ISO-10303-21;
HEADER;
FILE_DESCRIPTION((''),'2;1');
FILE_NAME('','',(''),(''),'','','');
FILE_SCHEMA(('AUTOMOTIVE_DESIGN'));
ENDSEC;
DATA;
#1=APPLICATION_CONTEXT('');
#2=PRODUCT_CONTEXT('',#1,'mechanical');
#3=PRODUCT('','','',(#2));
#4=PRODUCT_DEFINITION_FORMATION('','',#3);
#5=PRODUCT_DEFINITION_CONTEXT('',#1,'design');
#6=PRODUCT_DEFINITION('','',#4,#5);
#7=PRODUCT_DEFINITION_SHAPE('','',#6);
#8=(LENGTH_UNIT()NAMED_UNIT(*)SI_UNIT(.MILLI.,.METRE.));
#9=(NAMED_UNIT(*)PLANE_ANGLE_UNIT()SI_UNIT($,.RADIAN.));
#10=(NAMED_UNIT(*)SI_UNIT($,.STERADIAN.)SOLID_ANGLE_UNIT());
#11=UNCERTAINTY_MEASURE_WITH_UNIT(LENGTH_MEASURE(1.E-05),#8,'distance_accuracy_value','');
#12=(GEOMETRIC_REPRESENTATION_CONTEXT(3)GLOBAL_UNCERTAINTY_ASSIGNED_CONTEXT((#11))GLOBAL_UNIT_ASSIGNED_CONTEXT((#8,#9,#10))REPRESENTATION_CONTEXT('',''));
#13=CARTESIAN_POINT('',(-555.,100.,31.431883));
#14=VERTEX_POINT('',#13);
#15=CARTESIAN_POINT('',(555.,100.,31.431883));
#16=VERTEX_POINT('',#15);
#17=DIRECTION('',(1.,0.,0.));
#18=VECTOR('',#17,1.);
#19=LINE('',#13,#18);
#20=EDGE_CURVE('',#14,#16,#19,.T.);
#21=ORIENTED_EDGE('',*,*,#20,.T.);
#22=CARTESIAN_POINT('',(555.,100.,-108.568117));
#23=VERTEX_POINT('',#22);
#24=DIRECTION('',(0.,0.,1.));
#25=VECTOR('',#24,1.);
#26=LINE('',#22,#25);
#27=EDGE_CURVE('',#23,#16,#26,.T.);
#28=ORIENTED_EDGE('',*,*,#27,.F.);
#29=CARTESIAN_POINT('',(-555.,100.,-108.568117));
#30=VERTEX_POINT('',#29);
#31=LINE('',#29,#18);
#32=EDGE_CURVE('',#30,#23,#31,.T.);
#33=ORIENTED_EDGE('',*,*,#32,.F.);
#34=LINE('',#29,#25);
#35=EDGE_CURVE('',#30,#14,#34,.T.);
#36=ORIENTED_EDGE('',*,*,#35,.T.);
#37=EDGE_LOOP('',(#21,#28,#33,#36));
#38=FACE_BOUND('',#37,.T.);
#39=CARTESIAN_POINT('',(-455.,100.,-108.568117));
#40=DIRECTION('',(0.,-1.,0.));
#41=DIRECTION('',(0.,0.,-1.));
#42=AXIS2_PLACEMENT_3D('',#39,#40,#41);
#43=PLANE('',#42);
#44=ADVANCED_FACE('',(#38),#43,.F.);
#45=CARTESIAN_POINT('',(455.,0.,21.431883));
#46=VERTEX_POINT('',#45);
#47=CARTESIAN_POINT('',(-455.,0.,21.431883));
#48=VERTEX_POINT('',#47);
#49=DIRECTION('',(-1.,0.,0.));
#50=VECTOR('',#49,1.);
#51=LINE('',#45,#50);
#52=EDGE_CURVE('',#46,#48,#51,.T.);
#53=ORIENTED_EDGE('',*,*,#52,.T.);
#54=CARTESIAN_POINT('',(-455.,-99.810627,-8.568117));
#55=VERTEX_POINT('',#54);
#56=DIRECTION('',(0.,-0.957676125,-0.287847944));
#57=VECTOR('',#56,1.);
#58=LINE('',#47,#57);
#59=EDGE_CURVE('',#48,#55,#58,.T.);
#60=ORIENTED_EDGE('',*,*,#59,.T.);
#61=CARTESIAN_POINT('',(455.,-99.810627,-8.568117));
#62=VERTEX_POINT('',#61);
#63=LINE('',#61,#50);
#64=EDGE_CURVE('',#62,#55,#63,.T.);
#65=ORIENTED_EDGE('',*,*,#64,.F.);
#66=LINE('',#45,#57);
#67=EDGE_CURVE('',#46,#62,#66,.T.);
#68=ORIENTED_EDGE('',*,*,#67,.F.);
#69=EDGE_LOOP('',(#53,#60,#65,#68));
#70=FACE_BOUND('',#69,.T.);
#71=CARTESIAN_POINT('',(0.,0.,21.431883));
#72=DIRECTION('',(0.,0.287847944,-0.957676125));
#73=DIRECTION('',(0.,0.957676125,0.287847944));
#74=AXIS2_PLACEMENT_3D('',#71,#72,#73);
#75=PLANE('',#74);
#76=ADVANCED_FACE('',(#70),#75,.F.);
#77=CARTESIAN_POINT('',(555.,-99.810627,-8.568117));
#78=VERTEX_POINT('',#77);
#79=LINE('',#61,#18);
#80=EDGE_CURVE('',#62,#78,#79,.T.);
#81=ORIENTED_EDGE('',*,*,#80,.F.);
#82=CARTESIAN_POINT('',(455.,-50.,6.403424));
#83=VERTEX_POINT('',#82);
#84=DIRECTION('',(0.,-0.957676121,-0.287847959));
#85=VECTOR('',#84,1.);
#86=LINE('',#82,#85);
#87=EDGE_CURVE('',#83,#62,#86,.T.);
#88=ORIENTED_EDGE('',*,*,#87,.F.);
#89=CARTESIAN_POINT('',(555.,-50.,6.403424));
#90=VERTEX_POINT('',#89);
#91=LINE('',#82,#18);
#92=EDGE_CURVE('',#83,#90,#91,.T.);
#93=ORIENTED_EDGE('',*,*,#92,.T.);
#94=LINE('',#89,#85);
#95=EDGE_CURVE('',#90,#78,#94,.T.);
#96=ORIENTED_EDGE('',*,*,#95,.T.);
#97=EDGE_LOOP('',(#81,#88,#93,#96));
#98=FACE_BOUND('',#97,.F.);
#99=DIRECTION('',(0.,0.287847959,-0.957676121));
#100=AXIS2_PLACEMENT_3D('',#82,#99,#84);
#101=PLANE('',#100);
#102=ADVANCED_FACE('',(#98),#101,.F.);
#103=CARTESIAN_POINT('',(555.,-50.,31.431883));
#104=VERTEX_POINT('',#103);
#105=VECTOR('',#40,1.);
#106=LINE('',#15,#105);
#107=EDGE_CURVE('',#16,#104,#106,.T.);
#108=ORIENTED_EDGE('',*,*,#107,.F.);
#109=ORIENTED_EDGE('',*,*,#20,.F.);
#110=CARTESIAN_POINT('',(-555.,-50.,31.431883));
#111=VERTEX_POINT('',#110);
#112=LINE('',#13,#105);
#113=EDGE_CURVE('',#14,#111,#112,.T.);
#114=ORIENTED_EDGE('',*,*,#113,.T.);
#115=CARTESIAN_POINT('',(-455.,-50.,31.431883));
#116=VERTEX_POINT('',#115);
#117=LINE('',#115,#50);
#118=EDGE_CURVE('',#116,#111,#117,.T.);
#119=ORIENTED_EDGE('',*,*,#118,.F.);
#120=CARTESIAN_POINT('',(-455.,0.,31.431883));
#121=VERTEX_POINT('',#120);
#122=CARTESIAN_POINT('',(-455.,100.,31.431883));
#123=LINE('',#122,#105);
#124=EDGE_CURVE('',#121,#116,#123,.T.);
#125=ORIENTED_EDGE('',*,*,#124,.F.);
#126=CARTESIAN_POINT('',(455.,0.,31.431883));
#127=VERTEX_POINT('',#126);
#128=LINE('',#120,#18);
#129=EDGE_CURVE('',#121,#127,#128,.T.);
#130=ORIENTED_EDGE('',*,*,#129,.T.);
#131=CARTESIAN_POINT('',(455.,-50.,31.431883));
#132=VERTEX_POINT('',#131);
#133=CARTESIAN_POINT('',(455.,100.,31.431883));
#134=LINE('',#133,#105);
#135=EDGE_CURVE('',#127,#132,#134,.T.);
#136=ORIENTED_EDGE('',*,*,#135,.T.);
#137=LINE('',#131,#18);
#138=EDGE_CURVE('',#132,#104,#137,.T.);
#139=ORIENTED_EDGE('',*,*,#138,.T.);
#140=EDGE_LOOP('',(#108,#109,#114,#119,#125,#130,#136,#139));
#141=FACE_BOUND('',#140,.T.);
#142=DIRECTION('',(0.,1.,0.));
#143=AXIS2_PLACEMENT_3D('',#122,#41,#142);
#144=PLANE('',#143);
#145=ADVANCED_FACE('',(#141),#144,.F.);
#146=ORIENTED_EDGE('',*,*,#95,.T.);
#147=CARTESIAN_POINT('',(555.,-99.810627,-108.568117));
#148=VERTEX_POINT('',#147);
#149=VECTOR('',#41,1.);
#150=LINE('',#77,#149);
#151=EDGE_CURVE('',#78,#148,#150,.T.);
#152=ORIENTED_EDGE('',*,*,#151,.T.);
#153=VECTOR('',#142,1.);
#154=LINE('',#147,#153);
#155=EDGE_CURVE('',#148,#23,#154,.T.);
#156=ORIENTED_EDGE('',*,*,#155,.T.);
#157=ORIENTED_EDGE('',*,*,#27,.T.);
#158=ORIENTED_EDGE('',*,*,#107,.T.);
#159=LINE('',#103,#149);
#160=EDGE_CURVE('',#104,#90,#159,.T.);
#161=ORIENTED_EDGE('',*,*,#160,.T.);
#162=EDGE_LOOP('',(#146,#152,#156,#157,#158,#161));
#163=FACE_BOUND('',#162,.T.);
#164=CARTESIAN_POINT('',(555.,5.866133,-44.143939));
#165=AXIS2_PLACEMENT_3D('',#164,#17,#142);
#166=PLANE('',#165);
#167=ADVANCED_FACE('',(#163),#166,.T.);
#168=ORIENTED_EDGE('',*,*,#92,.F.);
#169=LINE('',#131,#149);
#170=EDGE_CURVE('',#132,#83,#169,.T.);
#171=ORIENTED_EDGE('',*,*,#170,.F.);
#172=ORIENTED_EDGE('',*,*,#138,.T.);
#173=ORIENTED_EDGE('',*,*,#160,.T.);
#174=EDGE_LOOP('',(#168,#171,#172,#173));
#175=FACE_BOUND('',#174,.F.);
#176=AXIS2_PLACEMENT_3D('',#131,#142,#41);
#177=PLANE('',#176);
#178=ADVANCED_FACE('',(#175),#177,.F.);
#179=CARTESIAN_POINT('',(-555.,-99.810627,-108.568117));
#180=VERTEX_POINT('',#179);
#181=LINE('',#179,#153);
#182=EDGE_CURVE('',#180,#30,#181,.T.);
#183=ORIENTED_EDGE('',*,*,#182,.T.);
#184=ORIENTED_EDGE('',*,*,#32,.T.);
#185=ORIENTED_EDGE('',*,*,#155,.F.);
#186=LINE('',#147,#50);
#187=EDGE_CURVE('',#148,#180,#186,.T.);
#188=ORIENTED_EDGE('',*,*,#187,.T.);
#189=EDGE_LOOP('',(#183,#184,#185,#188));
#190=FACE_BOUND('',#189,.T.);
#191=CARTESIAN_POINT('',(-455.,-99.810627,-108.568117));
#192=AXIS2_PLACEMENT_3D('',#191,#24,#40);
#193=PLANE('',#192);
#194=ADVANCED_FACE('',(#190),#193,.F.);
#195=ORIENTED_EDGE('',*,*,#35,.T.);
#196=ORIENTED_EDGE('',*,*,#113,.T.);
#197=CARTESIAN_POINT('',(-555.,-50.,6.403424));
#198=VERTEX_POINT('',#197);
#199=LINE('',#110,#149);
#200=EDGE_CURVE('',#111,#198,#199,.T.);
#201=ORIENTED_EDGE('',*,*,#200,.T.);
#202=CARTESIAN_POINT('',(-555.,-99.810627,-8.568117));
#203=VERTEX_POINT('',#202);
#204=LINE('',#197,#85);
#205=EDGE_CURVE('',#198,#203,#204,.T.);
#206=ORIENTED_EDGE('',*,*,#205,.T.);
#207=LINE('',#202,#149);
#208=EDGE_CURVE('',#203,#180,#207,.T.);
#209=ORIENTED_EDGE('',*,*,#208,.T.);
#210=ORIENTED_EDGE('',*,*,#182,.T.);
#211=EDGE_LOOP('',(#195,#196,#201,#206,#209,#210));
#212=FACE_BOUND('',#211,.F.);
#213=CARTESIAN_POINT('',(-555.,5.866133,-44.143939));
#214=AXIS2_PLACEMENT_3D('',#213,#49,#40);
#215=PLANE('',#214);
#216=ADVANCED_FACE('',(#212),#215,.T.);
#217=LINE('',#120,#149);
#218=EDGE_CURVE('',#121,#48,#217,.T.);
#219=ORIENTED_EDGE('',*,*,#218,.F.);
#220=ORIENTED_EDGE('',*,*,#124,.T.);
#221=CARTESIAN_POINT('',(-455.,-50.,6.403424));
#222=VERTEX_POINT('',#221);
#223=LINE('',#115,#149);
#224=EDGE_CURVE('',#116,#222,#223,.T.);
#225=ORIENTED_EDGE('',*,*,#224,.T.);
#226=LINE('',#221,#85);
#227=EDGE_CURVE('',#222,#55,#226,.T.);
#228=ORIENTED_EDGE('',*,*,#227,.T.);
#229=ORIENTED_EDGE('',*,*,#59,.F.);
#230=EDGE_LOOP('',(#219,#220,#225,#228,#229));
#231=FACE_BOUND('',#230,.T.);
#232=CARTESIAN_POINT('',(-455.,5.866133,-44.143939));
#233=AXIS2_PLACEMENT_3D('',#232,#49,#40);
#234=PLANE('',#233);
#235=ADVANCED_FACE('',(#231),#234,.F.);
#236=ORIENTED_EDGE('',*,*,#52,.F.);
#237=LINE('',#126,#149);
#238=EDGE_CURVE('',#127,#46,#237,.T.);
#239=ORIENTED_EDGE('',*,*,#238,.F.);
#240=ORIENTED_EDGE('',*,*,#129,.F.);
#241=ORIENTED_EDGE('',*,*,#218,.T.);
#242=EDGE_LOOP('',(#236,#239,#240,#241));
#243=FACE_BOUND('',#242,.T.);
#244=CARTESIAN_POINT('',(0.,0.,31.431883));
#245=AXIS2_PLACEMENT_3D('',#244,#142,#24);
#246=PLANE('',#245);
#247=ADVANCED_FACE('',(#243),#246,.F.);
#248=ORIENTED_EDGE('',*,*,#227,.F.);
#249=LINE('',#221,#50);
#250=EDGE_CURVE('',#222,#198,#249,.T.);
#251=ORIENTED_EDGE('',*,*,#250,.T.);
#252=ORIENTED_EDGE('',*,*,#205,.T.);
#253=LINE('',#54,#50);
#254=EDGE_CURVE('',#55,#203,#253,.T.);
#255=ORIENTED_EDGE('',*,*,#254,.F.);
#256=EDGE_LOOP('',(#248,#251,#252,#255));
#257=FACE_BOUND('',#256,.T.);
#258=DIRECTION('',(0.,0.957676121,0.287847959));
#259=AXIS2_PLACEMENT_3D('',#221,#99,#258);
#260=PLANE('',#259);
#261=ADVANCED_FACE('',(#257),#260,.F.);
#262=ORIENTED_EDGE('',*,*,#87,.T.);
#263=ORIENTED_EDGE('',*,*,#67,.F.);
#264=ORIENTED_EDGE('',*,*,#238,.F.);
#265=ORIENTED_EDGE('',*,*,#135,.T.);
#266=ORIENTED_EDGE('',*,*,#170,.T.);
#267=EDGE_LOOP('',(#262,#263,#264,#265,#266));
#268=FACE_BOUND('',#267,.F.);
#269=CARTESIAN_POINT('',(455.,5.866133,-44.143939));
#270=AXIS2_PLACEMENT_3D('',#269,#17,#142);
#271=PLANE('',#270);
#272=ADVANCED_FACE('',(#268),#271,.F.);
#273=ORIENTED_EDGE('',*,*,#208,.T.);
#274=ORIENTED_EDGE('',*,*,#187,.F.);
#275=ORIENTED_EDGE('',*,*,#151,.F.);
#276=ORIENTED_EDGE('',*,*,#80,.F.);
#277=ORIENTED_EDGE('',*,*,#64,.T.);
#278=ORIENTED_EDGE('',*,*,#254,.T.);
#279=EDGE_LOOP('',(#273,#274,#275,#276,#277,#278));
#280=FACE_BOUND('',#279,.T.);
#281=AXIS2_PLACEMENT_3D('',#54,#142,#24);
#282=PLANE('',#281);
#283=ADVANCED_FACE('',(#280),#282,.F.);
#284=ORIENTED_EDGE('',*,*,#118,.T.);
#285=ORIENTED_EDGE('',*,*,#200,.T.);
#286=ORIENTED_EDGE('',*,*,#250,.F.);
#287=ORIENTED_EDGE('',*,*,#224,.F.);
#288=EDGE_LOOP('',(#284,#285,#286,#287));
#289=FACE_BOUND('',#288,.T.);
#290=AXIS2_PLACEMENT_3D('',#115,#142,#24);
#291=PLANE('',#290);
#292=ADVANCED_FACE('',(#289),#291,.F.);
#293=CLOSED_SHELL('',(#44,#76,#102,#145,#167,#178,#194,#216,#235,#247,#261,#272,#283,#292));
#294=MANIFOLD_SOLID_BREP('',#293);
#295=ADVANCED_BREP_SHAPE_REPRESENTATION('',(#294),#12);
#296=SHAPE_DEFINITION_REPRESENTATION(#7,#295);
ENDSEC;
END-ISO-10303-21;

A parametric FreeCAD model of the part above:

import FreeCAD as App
import Part
import Sketcher

V = App.Vector


def add_polygon(sketch, points):
    """Adds a closed chain of lines whose ends are joined by coincident constraints."""
    first, n = sketch.GeometryCount, len(points)
    for a, b in zip(points, points[1:] + points[:1]):
        sketch.addGeometry(Part.LineSegment(App.Vector(*a, 0), App.Vector(*b, 0)), False)
    for i in range(n):
        sketch.addConstraint(Sketcher.Constraint("Coincident", first + i, 2, first + (i + 1) % n, 1))

doc = App.newDocument("Part")
body = doc.addObject("PartDesign::Body", "Body")

# Sketch on YZ plane
sketch1 = body.newObject("Sketcher::SketchObject", "Sketch")
sketch1.AttachmentSupport = (doc.getObject("YZ_Plane"), [""])
sketch1.MapMode = "FlatFace"
add_polygon(sketch1, [(100, 31), (0, 31), (0, 21), (-100, -9), (-100, -109), (100, -109)])  # lines 0-5
sketch1.addConstraint(Sketcher.Constraint("Horizontal", 0))
sketch1.addConstraint(Sketcher.Constraint("Vertical", 1))
sketch1.addConstraint(Sketcher.Constraint("Vertical", 3))
sketch1.addConstraint(Sketcher.Constraint("Horizontal", 4))
sketch1.addConstraint(Sketcher.Constraint("Vertical", 5))
sketch1.addConstraint(Sketcher.Constraint("PointOnObject", 0, 2, -2))
sketch1.addConstraint(Sketcher.Constraint("Equal", 0, 3))
sketch1.addConstraint(Sketcher.Constraint("DistanceX", 0, 2, 0, 1, 100.0))
sketch1.addConstraint(Sketcher.Constraint("DistanceY", 1, 2, 1, 1, 10.0))
sketch1.addConstraint(Sketcher.Constraint("DistanceY", 5, 1, 5, 2, 140.0))
sketch1.addConstraint(Sketcher.Constraint("DistanceX", 4, 1, 4, 2, 199.810627))
sketch1.addConstraint(Sketcher.Constraint("DistanceY", -1, 1, 0, 2, 31.431883))
pad1 = body.newObject("PartDesign::Pad", "Pad")
pad1.Profile = sketch1
pad1.Length = 455

# Sketch on YZ plane
sketch2 = body.newObject("Sketcher::SketchObject", "Sketch001")
sketch2.AttachmentSupport = (doc.getObject("YZ_Plane"), [""])
sketch2.MapMode = "FlatFace"
sketch2.AttachmentOffset = App.Placement(V(0, 0, 455), App.Rotation())
add_polygon(sketch2, [(-100, -109), (100, -109), (100, 31), (-50, 31), (-50, 6), (-100, -9)])  # lines 0-5
sketch2.addConstraint(Sketcher.Constraint("Horizontal", 0))
sketch2.addConstraint(Sketcher.Constraint("Vertical", 1))
sketch2.addConstraint(Sketcher.Constraint("Horizontal", 2))
sketch2.addConstraint(Sketcher.Constraint("Vertical", 3))
sketch2.addConstraint(Sketcher.Constraint("Vertical", 5))
sketch2.addConstraint(Sketcher.Constraint("DistanceX", 2, 2, 2, 1, 150.0))
sketch2.addConstraint(Sketcher.Constraint("DistanceY", 1, 1, 1, 2, 140.0))
sketch2.addConstraint(Sketcher.Constraint("DistanceY", 5, 2, 5, 1, 100.0))
sketch2.addConstraint(Sketcher.Constraint("DistanceX", -1, 1, 0, 2, 100.0))
sketch2.addConstraint(Sketcher.Constraint("DistanceY", 3, 2, 3, 1, 25.028459))
sketch2.addConstraint(Sketcher.Constraint("DistanceX", 0, 1, 0, 2, 199.810627))
sketch2.addConstraint(Sketcher.Constraint("DistanceY", 0, 2, -1, 1, 108.568117))
pad2 = body.newObject("PartDesign::Pad", "Pad001")
pad2.Profile = sketch2
pad2.Length = 100
body2 = doc.addObject("PartDesign::Body", "Body001")
doc.recompute()

body2.BaseFeature = body
doc.recompute()

mirroring = doc.addObject("Part::Mirroring", "Mirroring")
mirroring.Source = body
mirroring.Base = V(0, 5.969064, -44.0526)
mirroring.Normal = V(-1, 0, 0)
body3 = doc.addObject("PartDesign::Body", "Body002")
body3.BaseFeature = mirroring
boolean = body2.newObject("PartDesign::Boolean", "Boolean")
boolean.Type = "Fuse"
boolean.addObjects([body3])
doc.recompute()
mirroring.Visibility = False

doc.recompute()
